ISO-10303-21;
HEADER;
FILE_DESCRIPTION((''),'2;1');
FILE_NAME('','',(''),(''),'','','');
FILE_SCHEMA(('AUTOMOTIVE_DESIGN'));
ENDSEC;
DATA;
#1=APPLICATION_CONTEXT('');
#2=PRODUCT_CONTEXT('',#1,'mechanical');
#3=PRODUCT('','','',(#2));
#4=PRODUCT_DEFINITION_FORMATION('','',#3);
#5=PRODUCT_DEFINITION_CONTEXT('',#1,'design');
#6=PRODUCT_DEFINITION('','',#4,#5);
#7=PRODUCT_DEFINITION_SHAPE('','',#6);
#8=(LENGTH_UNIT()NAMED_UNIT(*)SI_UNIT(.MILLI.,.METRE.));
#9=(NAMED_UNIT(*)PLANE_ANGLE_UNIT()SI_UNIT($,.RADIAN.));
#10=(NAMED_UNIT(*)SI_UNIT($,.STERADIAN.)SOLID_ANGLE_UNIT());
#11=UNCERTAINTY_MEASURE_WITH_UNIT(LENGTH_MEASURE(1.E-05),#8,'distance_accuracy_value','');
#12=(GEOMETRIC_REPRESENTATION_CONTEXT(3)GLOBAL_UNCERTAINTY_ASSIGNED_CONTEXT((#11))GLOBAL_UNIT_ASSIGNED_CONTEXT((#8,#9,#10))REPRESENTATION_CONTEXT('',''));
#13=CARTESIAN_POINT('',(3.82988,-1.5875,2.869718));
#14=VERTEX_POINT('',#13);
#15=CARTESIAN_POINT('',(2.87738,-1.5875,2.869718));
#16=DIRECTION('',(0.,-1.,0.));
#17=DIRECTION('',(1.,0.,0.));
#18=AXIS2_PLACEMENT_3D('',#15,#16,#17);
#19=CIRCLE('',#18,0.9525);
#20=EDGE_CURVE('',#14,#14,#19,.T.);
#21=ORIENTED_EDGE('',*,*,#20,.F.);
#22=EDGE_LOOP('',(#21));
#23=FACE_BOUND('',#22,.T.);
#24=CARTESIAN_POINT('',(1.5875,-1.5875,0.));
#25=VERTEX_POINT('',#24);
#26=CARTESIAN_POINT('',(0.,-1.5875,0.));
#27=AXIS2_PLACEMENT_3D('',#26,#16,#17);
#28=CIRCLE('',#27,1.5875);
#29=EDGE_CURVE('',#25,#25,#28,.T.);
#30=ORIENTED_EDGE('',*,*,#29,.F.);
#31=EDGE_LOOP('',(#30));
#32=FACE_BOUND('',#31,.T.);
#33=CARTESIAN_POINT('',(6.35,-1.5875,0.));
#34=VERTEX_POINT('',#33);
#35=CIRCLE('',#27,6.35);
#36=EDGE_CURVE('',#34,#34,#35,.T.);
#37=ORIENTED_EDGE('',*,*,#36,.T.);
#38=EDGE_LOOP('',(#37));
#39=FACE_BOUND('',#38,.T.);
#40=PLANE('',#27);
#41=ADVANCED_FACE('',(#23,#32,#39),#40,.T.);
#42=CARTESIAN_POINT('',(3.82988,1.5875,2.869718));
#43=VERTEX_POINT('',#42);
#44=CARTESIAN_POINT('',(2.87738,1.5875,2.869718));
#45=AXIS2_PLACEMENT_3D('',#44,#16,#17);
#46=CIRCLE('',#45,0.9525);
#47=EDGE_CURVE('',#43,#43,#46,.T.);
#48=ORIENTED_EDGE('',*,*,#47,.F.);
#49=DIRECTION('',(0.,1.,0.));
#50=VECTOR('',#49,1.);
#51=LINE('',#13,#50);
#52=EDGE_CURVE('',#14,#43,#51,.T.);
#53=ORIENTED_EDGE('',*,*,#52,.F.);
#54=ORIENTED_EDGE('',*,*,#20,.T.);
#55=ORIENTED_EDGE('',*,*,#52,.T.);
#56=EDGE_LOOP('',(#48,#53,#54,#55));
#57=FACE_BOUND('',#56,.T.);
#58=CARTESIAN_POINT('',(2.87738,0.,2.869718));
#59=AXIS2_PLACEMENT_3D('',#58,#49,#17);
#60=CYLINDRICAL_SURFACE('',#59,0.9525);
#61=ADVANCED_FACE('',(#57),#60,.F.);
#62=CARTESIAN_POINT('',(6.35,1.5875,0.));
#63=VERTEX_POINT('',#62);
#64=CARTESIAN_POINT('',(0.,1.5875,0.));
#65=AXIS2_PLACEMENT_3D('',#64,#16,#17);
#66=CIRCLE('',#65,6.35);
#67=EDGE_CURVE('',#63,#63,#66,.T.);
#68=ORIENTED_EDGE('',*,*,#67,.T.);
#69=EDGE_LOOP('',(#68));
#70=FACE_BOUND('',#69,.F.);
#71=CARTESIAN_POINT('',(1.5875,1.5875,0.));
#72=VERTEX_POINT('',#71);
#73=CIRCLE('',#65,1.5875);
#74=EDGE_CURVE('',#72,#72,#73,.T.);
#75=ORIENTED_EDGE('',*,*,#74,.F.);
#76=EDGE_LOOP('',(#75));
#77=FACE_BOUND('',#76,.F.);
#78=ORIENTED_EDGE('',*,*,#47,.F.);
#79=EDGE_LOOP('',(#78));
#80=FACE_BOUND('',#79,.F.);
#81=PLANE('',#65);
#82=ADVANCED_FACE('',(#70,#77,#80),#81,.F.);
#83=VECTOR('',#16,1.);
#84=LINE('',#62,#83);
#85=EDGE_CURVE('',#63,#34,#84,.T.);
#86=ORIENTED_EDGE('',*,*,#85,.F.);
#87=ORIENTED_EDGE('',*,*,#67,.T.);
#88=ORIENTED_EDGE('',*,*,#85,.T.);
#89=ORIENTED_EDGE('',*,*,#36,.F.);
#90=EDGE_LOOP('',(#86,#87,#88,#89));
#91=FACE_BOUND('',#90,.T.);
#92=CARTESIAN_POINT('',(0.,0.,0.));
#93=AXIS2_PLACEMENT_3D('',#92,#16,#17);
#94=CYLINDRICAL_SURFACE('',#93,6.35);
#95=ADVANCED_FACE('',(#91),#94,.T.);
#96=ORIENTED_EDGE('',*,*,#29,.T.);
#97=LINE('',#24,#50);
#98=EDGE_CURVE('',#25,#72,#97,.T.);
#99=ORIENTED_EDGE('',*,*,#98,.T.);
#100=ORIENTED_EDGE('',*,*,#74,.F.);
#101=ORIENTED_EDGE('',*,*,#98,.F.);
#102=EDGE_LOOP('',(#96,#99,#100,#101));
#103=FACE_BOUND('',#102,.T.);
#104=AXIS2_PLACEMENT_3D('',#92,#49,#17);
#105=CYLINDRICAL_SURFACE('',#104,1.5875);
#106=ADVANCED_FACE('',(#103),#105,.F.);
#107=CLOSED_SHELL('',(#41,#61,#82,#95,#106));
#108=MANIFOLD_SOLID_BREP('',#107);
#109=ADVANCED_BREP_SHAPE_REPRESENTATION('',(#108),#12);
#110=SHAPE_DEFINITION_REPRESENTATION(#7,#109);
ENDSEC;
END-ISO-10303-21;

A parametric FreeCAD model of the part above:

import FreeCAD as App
import Part
import Sketcher
from FreeCAD import Vector
Q = App.Units.Quantity

doc = App.newDocument("Part")
body = doc.addObject("PartDesign::Body", "Body")

sketch1 = body.newObject("Sketcher::SketchObject", "Sketch")
sketch1.AttachmentSupport = (doc.getObject("XZ_Plane"), [""])
sketch1.MapMode = "FlatFace"
sketch1.addGeometry([
    Part.Circle(Vector(0, 0, 0), Vector(0, 0, 1), 6.35),
    Part.Circle(Vector(0, 0, 0), Vector(0, 0, 1), 1.5875),
    Part.Circle(Vector(2.87738, 2.869718, 0), Vector(0, 0, 1), 0.9525),
], False)
sketch1.addConstraint([
    Sketcher.Constraint("Coincident", 0, 3, -1, 1),
    Sketcher.Constraint("Coincident", 1, 3, -1, 1),
    Sketcher.Constraint("Diameter", 0, Q("0.5 in")),
    Sketcher.Constraint("Diameter", 1, Q("0.125 in")),
    Sketcher.Constraint("Diameter", 2, Q("0.075 in")),
    Sketcher.Constraint("DistanceX", -1, 1, 2, 3, Q("2.87738 mm")),
    Sketcher.Constraint("DistanceY", -1, 1, 2, 3, Q("2.869718 mm")),
])
pad1 = body.newObject("PartDesign::Pad", "Pad")
pad1.Profile = sketch1
pad1.Length = Q("0.125 in")
pad1.Midplane = True

doc.recompute()
